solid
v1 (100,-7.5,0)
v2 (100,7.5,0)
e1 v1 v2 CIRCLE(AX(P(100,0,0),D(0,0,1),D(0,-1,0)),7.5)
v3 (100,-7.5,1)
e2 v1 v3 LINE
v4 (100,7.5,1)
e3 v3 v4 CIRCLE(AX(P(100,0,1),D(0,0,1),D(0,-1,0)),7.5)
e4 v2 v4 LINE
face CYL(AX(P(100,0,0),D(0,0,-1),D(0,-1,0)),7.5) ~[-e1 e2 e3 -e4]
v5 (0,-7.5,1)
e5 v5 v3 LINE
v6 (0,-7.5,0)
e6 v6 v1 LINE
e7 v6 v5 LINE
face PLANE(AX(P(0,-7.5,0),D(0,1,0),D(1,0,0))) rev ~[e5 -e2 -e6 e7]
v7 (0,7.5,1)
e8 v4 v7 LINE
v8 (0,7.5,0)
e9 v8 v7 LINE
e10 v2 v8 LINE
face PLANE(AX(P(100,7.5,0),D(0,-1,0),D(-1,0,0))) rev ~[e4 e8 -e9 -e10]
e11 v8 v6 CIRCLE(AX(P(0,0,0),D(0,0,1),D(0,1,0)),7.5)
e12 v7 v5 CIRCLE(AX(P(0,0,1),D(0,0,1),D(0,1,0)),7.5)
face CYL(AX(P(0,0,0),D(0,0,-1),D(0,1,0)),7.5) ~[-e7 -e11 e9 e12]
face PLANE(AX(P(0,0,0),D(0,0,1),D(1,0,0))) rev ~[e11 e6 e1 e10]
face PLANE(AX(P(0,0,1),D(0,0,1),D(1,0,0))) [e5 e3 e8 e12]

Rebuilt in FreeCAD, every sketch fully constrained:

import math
import FreeCAD as App
import Part
import Sketcher
from FreeCAD import Vector
Q = App.Units.Quantity

doc = App.newDocument("Part")
body = doc.addObject("PartDesign::Body", "Body")

sketch1 = doc.addObject("Sketcher::SketchObject", "Sketch")
body.addObject(sketch1)
sketch1.AttachmentSupport = (doc.XY_Plane, [""])
sketch1.MapMode = "FlatFace"
sketch1.addGeometry([
    Part.ArcOfCircle(Part.Circle(Vector(0, 0, 0), Vector(0, 0, 1), 7.5), math.radians(90), math.radians(270)),
    Part.LineSegment(Vector(0, -7.5, 0), Vector(100, -7.5, 0)),
    Part.ArcOfCircle(Part.Circle(Vector(100, 0, 0), Vector(0, 0, 1), 7.5), math.radians(-90), math.radians(90)),
    Part.LineSegment(Vector(100, 7.5, 0), Vector(0, 7.5, 0)),
], False)
sketch1.addConstraint([
    Sketcher.Constraint("Tangent", 0, 2, 1, 1),
    Sketcher.Constraint("Tangent", 1, 2, 2, 1),
    Sketcher.Constraint("Tangent", 2, 2, 3, 1),
    Sketcher.Constraint("Tangent", 3, 2, 0, 1),
    Sketcher.Constraint("Horizontal", 1),
    Sketcher.Constraint("Horizontal", 3),
    Sketcher.Constraint("Coincident", 0, 3, -1, 1),
    Sketcher.Constraint("Radius", 0, Q("7.5 mm")),
    Sketcher.Constraint("DistanceX", 1, 1, 1, 2, Q("100 mm")),
])
pad1 = doc.addObject("PartDesign::Pad", "Pad")
body.addObject(pad1)
pad1.Profile = sketch1
pad1.Length = 1

doc.recompute()
